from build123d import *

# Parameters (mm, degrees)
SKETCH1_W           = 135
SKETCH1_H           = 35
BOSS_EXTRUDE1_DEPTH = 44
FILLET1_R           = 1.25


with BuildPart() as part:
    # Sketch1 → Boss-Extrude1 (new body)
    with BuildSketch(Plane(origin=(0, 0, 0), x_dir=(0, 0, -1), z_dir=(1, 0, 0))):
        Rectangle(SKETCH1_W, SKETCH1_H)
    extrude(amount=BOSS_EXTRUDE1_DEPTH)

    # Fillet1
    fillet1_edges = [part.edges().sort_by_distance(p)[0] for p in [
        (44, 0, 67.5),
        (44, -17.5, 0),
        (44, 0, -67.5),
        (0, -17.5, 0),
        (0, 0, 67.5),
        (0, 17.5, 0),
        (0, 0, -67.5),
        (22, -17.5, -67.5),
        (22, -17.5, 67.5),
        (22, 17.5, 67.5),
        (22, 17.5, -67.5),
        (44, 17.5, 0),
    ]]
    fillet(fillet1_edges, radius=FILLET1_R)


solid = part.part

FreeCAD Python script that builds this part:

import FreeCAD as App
import Part
import Sketcher

V = App.Vector


def add_polygon(sketch, points):
    """Adds a closed chain of lines whose ends are joined by coincident constraints."""
    first, n = sketch.GeometryCount, len(points)
    for a, b in zip(points, points[1:] + points[:1]):
        sketch.addGeometry(Part.LineSegment(App.Vector(*a, 0), App.Vector(*b, 0)), False)
    for i in range(n):
        sketch.addConstraint(Sketcher.Constraint("Coincident", first + i, 2, first + (i + 1) % n, 1))

doc = App.newDocument("Part")
body = doc.addObject("PartDesign::Body", "Body")

# Sketch on YZ plane
sketch1 = body.newObject("Sketcher::SketchObject", "Sketch")
sketch1.AttachmentSupport = (doc.getObject("YZ_Plane"), [""])
sketch1.MapMode = "FlatFace"
add_polygon(sketch1, [(18, 68), (-18, 68), (-18, -68), (18, -68)])  # lines 0-3
sketch1.addConstraint([
    Sketcher.Constraint("Horizontal", 0),
    Sketcher.Constraint("Vertical", 1),
    Sketcher.Constraint("Horizontal", 2),
    Sketcher.Constraint("Vertical", 3),
    Sketcher.Constraint("Symmetric", 0, 2, 2, 2, -1, 1),
    Sketcher.Constraint("DistanceX", 0, 2, 0, 1, 35.0),
    Sketcher.Constraint("DistanceY", 1, 2, 1, 1, 135.0),
])
pad1 = body.newObject("PartDesign::Pad", "Pad")
pad1.Profile = sketch1
pad1.Length = 44
doc.recompute()

fillet = body.newObject("PartDesign::Fillet", "Fillet")
fillet.Base = (pad1, ["Edge1"])
fillet.UseAllEdges = True
fillet.Radius = 1.25

doc.recompute()
